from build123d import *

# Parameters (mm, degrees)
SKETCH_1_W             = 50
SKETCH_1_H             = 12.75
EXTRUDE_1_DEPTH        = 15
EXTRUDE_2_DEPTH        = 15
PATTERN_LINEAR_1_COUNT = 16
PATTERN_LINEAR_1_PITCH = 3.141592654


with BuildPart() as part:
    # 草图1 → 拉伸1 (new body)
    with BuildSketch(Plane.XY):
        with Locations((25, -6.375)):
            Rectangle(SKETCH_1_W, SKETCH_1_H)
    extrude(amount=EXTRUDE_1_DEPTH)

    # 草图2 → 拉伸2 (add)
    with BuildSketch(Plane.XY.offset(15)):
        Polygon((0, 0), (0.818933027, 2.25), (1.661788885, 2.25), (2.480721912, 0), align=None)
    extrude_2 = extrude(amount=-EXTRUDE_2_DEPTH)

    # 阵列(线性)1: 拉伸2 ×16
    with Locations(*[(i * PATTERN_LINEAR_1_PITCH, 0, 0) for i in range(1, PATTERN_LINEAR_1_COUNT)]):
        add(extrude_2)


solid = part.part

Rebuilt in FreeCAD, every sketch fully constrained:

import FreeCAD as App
import Part
import Sketcher

V = App.Vector
Q = App.Units.Quantity

doc = App.newDocument("Part")
body = doc.addObject("PartDesign::Body", "Body")

# Sketch on XY plane
sketch1 = doc.addObject("Sketcher::SketchObject", "Sketch")
body.addObject(sketch1)
sketch1.AttachmentSupport = (doc.XY_Plane, [""])
sketch1.MapMode = "FlatFace"
sketch1.addGeometry([
    Part.LineSegment(V(0, 0, 0), V(0, -12.75, 0)),
    Part.LineSegment(V(0, -12.75, 0), V(50, -12.75, 0)),
    Part.LineSegment(V(50, -12.75, 0), V(50, 0, 0)),
    Part.LineSegment(V(50, 0, 0), V(0, 0, 0)),
], False)
sketch1.addConstraint([
    Sketcher.Constraint("Coincident", 0, 2, 1, 1),
    Sketcher.Constraint("Coincident", 1, 2, 2, 1),
    Sketcher.Constraint("Coincident", 2, 2, 3, 1),
    Sketcher.Constraint("Coincident", 3, 2, 0, 1),
    Sketcher.Constraint("Vertical", 0),
    Sketcher.Constraint("Horizontal", 1),
    Sketcher.Constraint("Vertical", 2),
    Sketcher.Constraint("Horizontal", 3),
    Sketcher.Constraint("Coincident", 3, 2, -1, 1),
    Sketcher.Constraint("DistanceX", 1, 1, 1, 2, Q("50 mm")),
    Sketcher.Constraint("DistanceY", 0, 2, 0, 1, Q("12.75 mm")),
])
pad1 = doc.addObject("PartDesign::Pad", "Pad")
body.addObject(pad1)
pad1.Profile = sketch1
pad1.Length = 15

# Sketch on XY plane
sketch2 = doc.addObject("Sketcher::SketchObject", "Sketch001")
body.addObject(sketch2)
sketch2.AttachmentSupport = (doc.XY_Plane, [""])
sketch2.MapMode = "FlatFace"
sketch2.AttachmentOffset = App.Placement(V(0, 0, 15), App.Rotation())
sketch2.addGeometry([
    Part.LineSegment(V(0.818933, 2.25, 0), V(0, 0, 0)),
    Part.LineSegment(V(0, 0, 0), V(2.480722, 0, 0)),
    Part.LineSegment(V(2.480722, 0, 0), V(1.661789, 2.25, 0)),
    Part.LineSegment(V(1.661789, 2.25, 0), V(0.818933, 2.25, 0)),
], False)
sketch2.addConstraint([
    Sketcher.Constraint("Coincident", 0, 2, 1, 1),
    Sketcher.Constraint("Coincident", 1, 2, 2, 1),
    Sketcher.Constraint("Coincident", 2, 2, 3, 1),
    Sketcher.Constraint("Coincident", 3, 2, 0, 1),
    Sketcher.Constraint("Horizontal", 1),
    Sketcher.Constraint("Horizontal", 3),
    Sketcher.Constraint("Coincident", 0, 2, -1, 1),
    Sketcher.Constraint("Equal", 0, 2),
    Sketcher.Constraint("Angle", 0, Q("-110 deg")),
    Sketcher.Constraint("DistanceY", -1, 1, 2, 2, Q("2.25 mm")),
    Sketcher.Constraint("DistanceX", 1, 1, 1, 2, Q("2.480722 mm")),
])
pad2 = doc.addObject("PartDesign::Pad", "Pad001")
body.addObject(pad2)
pad2.Profile = sketch2
pad2.Length = 15
pad2.Reversed = True
doc.recompute()

linearpattern = doc.addObject("PartDesign::LinearPattern", "LinearPattern")
body.addObject(linearpattern)
linearpattern.Originals = [pad2]
linearpattern.Direction = (doc.X_Axis, [""])
linearpattern.Mode = "offset"
linearpattern.Offset = 3.141593
linearpattern.Occurrences = 16
body.Tip = linearpattern

doc.recompute()
